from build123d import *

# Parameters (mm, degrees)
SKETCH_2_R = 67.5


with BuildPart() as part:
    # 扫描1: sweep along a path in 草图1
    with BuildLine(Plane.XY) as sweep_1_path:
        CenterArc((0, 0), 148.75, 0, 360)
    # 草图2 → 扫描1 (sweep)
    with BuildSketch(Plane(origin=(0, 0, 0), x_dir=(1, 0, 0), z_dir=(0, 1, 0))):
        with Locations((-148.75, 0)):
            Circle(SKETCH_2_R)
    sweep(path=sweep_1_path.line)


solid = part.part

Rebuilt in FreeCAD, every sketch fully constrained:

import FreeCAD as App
import Part
import Sketcher
from FreeCAD import Vector

doc = App.newDocument("Part")
body = doc.addObject("PartDesign::Body", "Body")

sketch1 = body.newObject("Sketcher::SketchObject", "Sketch")
sketch1.AttachmentSupport = (doc.getObject("XZ_Plane"), [""])
sketch1.MapMode = "FlatFace"
sketch1.addGeometry(Part.Circle(Vector(-148.75, 0, 0), Vector(0, 0, 1), 67.5), False)
sketch1.addConstraint([
    Sketcher.Constraint("PointOnObject", 0, 3, -1),
    Sketcher.Constraint("Diameter", 0, 135.0),
    Sketcher.Constraint("DistanceX", 0, 3, -1, 1, 148.75),
])

sketch2 = body.newObject("Sketcher::SketchObject", "Sketch001")
sketch2.AttachmentSupport = (doc.getObject("XY_Plane"), [""])
sketch2.MapMode = "FlatFace"
sketch2.addGeometry(Part.Circle(Vector(0, 0, 0), Vector(0, 0, 1), 148.75), False)
sketch2.addConstraint([
    Sketcher.Constraint("Coincident", 0, 3, -1, 1),
    Sketcher.Constraint("Diameter", 0, 297.5),
])
doc.recompute()

additivepipe = body.newObject("PartDesign::AdditivePipe", "AdditivePipe")
additivepipe.Profile = sketch1
additivepipe.Spine = (sketch2, ["Edge1"])

doc.recompute()
